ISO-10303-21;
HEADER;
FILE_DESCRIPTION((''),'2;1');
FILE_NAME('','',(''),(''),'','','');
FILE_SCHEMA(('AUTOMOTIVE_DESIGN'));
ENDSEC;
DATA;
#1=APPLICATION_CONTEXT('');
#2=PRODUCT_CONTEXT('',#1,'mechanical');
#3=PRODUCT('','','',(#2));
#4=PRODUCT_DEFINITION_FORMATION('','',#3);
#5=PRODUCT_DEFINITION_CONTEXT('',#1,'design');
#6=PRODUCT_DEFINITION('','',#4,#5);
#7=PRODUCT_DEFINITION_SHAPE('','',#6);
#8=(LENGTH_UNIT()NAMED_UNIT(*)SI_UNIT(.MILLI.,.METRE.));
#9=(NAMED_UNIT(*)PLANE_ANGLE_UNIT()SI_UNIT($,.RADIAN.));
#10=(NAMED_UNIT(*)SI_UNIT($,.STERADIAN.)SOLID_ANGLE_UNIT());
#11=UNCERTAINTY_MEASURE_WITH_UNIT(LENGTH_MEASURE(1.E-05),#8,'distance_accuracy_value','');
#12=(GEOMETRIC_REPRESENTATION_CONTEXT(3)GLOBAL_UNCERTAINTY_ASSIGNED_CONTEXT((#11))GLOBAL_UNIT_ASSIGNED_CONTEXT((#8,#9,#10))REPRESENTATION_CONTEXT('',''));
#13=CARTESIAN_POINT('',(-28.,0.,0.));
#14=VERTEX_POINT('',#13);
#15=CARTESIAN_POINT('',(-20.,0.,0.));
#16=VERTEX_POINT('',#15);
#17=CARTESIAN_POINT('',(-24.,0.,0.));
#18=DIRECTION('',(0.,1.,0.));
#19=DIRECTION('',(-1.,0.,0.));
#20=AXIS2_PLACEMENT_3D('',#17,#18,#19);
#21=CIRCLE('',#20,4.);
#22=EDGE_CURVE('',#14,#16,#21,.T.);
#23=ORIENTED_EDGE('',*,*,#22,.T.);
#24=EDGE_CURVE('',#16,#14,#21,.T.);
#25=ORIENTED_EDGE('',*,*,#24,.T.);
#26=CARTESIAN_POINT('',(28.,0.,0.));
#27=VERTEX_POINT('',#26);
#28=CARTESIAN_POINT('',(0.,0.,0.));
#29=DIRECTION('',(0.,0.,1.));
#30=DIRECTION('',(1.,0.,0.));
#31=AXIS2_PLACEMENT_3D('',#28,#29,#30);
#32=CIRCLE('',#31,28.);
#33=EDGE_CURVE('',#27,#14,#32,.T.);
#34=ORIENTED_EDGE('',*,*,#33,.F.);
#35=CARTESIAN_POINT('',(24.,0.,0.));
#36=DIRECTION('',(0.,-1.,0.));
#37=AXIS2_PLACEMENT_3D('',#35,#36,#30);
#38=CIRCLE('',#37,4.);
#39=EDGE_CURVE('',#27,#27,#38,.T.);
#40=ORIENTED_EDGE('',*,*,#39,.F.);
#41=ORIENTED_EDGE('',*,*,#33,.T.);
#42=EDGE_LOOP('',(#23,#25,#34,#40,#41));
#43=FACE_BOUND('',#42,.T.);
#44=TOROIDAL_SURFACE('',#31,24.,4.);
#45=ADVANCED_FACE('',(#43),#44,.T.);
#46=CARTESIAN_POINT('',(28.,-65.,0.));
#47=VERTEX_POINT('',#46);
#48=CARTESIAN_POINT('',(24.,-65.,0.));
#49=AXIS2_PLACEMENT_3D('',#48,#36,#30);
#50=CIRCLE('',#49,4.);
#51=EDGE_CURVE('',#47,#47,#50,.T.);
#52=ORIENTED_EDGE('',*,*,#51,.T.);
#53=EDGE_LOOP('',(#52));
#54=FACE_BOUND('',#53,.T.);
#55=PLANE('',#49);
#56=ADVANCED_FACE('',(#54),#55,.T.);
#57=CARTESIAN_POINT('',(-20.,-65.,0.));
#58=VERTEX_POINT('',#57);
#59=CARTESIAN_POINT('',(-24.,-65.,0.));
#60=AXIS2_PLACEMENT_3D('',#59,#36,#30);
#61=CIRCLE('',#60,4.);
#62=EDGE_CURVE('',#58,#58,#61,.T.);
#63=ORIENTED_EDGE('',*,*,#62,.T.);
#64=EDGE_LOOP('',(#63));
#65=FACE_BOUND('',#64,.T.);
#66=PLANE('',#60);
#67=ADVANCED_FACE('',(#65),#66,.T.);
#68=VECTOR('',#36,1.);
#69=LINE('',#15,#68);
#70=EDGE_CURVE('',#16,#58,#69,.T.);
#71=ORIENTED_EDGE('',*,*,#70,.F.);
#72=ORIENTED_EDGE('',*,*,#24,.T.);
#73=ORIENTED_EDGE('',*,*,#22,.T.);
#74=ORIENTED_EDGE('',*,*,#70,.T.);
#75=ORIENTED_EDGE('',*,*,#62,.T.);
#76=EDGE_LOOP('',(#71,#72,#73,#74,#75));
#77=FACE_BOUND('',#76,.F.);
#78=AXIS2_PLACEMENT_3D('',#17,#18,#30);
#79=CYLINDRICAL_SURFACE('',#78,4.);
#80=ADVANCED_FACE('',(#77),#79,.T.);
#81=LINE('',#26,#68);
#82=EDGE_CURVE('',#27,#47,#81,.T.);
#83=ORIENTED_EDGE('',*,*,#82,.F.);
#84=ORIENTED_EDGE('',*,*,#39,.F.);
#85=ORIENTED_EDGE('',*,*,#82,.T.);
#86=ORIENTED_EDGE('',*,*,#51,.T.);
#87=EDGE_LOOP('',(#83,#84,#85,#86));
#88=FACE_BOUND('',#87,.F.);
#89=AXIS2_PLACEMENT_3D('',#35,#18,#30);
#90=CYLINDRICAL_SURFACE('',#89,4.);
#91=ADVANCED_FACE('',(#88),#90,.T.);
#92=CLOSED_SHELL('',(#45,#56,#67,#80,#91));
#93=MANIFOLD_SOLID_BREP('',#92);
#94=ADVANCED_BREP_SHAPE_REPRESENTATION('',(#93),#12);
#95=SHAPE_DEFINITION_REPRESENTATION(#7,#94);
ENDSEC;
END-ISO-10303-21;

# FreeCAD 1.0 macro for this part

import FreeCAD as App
import Part
import Sketcher

V = App.Vector

doc = App.newDocument("Part")
params = doc.addObject("Spreadsheet::Sheet", "Params")
for row, (alias, value) in enumerate([
    ("sketch1_diameter", "8 mm"),
    ("revolution_angle", "180 deg"),
    ("sketch2_diameter", "8 mm"),
    ("pad1_length", "65 mm"),
], start=1):
    params.set(f"A{row}", alias)
    params.set(f"B{row}", "=" + value)
    params.setAlias(f"B{row}", alias)

body = doc.addObject("PartDesign::Body", "Body")

# Sketch on XZ plane
sketch1 = body.newObject("Sketcher::SketchObject", "Sketch")
sketch1.AttachmentSupport = (doc.getObject("XZ_Plane"), [""])
sketch1.MapMode = "FlatFace"
sketch1.addGeometry(Part.Circle(V(24, 0, 0), V(0, 0, 1), 4), False)
sketch1.addConstraint([
    Sketcher.Constraint("PointOnObject", 0, 3, -1),
    Sketcher.Constraint("Diameter", 0, 8.0),
    Sketcher.Constraint("DistanceX", -1, 1, 0, 3, 24.0),
])
sketch1.setExpression("Constraints[1]", "Params.sketch1_diameter")
revolution = body.newObject("PartDesign::Revolution", "Revolution")
revolution.Profile = sketch1
revolution.ReferenceAxis = (sketch1, ["V_Axis"])
revolution.setExpression("Angle", "Params.revolution_angle")

# Sketch on XZ plane
sketch2 = body.newObject("Sketcher::SketchObject", "Sketch001")
sketch2.AttachmentSupport = (doc.getObject("XZ_Plane"), [""])
sketch2.MapMode = "FlatFace"
sketch2.addGeometry([
    Part.Circle(V(-24, 0, 0), V(0, 0, 1), 4),
    Part.Circle(V(24, 0, 0), V(0, 0, 1), 4),
], False)
sketch2.addConstraint([
    Sketcher.Constraint("Equal", 0, 1),
    Sketcher.Constraint("Symmetric", 0, 3, 1, 3, -1, 1),
    Sketcher.Constraint("PointOnObject", 0, 3, -1),
    Sketcher.Constraint("Diameter", 0, 8.0),
    Sketcher.Constraint("DistanceX", 0, 3, -1, 1, 24.0),
])
sketch2.setExpression("Constraints[3]", "Params.sketch2_diameter")
pad1 = body.newObject("PartDesign::Pad", "Pad")
pad1.Profile = sketch2
pad1.setExpression("Length", "Params.pad1_length")

doc.recompute()
